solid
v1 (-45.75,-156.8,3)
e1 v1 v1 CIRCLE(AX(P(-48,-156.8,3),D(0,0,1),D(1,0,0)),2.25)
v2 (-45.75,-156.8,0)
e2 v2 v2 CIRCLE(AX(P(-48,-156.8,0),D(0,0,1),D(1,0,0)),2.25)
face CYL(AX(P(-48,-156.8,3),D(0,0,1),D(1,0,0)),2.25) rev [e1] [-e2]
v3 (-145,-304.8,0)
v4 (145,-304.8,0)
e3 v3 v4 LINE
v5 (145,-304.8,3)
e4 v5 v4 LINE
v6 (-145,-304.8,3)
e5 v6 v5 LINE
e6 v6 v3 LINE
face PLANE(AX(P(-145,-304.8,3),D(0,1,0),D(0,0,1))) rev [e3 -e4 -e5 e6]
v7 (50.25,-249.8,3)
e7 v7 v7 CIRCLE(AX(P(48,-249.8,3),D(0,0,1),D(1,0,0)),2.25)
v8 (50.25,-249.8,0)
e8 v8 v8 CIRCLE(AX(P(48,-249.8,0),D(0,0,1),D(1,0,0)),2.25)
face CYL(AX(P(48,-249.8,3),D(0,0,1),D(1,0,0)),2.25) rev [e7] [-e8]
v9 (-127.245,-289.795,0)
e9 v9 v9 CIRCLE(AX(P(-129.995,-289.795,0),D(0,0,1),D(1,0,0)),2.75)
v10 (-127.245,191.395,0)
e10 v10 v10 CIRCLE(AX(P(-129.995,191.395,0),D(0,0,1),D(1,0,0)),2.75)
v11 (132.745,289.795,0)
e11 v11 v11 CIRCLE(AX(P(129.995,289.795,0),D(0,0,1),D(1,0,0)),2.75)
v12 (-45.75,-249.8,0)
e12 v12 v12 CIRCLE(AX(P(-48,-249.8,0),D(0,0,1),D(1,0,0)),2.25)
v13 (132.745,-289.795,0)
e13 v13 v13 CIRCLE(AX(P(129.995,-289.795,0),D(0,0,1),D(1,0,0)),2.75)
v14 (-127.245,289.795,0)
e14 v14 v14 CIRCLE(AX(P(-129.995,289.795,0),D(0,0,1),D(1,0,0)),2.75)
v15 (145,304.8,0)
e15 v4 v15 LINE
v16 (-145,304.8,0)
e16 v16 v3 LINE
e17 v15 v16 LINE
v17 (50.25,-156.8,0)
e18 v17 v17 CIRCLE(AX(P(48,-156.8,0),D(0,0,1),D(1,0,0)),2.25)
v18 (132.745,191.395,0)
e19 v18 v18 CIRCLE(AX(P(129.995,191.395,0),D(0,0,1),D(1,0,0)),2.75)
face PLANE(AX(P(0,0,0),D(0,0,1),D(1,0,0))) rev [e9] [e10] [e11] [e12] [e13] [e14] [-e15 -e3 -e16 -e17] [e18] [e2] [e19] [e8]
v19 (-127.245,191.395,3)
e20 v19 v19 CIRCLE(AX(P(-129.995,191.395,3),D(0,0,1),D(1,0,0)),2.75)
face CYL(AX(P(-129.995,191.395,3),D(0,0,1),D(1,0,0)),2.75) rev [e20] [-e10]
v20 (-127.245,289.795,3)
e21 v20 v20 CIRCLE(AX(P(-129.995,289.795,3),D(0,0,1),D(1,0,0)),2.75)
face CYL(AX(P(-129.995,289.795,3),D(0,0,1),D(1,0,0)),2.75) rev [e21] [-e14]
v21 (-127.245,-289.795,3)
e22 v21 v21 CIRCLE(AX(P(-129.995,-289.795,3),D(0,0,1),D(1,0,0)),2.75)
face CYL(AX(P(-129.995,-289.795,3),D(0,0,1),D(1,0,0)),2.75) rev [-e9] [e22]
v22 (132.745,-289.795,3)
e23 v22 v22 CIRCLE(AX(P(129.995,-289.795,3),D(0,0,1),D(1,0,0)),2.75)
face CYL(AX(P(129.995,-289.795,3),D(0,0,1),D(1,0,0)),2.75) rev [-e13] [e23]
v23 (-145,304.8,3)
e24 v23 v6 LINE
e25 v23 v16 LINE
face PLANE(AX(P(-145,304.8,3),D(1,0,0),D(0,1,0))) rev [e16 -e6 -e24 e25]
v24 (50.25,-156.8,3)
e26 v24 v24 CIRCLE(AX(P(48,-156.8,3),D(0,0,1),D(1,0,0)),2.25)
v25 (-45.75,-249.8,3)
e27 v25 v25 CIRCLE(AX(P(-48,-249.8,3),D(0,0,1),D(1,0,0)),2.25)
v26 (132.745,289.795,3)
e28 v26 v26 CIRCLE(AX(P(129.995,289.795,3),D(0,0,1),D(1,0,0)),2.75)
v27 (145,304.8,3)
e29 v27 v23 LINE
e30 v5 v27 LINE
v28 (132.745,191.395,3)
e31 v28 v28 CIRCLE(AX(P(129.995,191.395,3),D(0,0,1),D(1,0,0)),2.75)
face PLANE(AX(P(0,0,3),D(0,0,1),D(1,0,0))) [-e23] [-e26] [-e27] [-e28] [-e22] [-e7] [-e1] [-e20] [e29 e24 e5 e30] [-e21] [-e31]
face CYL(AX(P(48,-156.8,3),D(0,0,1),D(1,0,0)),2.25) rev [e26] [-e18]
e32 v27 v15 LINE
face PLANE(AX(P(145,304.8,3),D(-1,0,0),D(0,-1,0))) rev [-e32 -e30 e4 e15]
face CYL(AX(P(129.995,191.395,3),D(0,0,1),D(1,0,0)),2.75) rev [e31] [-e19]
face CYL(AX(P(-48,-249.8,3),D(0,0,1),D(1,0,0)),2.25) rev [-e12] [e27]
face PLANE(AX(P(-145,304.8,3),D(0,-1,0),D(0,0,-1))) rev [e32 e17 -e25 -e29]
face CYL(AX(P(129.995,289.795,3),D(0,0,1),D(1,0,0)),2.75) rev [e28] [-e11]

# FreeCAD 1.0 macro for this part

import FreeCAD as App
import Part
import Sketcher
from FreeCAD import Vector
Q = App.Units.Quantity

doc = App.newDocument("Part")
body = doc.addObject("PartDesign::Body", "Body")

# Sketch on XY plane
sketch1 = doc.addObject("Sketcher::SketchObject", "Sketch")
body.addObject(sketch1)
sketch1.AttachmentSupport = (doc.XY_Plane, [""])
sketch1.MapMode = "FlatFace"
sketch1.addGeometry([
    Part.LineSegment(Vector(-145, 305, 0), Vector(-145, -305, 0)),
    Part.LineSegment(Vector(-145, -305, 0), Vector(145, -305, 0)),
    Part.LineSegment(Vector(145, -305, 0), Vector(145, 305, 0)),
    Part.LineSegment(Vector(145, 305, 0), Vector(-145, 305, 0)),
], False)
sketch1.addConstraint([
    Sketcher.Constraint("Coincident", 0, 2, 1, 1),
    Sketcher.Constraint("Coincident", 1, 2, 2, 1),
    Sketcher.Constraint("Coincident", 2, 2, 3, 1),
    Sketcher.Constraint("Coincident", 3, 2, 0, 1),
    Sketcher.Constraint("Vertical", 0),
    Sketcher.Constraint("Horizontal", 1),
    Sketcher.Constraint("Vertical", 2),
    Sketcher.Constraint("Horizontal", 3),
    Sketcher.Constraint("Symmetric", 0, 2, 2, 2, -1, 1),
    Sketcher.Constraint("DistanceX", 1, 1, 1, 2, Q("290 mm")),
    Sketcher.Constraint("DistanceY", 0, 2, 0, 1, Q("609.6 mm")),
])
pad1 = doc.addObject("PartDesign::Pad", "Pad")
body.addObject(pad1)
pad1.Profile = sketch1
pad1.Length = 3

# Sketch on XY plane
sketch2 = doc.addObject("Sketcher::SketchObject", "Sketch001")
body.addObject(sketch2)
sketch2.AttachmentSupport = (doc.XY_Plane, [""])
sketch2.MapMode = "FlatFace"
sketch2.AttachmentOffset = App.Placement(Vector(0, 0, 3), App.Rotation())
sketch2.addGeometry([
    Part.Circle(Vector(130, 289.8, 0), Vector(0, 0, 1), 2.8),  # 0
    Part.Circle(Vector(-130, 289.8, 0), Vector(0, 0, 1), 2.8),  # 1
    Part.Circle(Vector(-130, -289.8, 0), Vector(0, 0, 1), 2.8),  # 2
    Part.Circle(Vector(130, -289.8, 0), Vector(0, 0, 1), 2.8),  # 3
    Part.Circle(Vector(130, 191.4, 0), Vector(0, 0, 1), 2.8),  # 4
    Part.Circle(Vector(-130, 191.4, 0), Vector(0, 0, 1), 2.8),  # 5
], False)
sketch2.addConstraint([
    Sketcher.Constraint("Equal", 0, 1),
    Sketcher.Constraint("Equal", 1, 2),
    Sketcher.Constraint("Equal", 2, 3),
    Sketcher.Constraint("Equal", 3, 4),
    Sketcher.Constraint("Equal", 4, 5),
    Sketcher.Constraint("Symmetric", 0, 3, 2, 3, -1, 1),
    Sketcher.Constraint("Symmetric", 1, 3, 3, 3, -1, 1),
    Sketcher.Constraint("Symmetric", 0, 3, 1, 3, -2),
    Sketcher.Constraint("Symmetric", 4, 3, 5, 3, -2),
    Sketcher.Constraint("Vertical", 3, 3, 4, 3),
    Sketcher.Constraint("Diameter", 0, Q("5.5 mm")),
    Sketcher.Constraint("DistanceY", 4, 3, 0, 3, Q("98.4 mm")),
    Sketcher.Constraint("DistanceX", 1, 3, 0, 3, Q("259.99 mm")),
    Sketcher.Constraint("DistanceY", 2, 3, 1, 3, Q("579.59 mm")),
])
doc.recompute()
hole = doc.addObject("PartDesign::Hole", "Hole")
body.addObject(hole)
hole.Profile = sketch2
hole.ThreadType = "None"
hole.Diameter = 5.5
hole.DepthType = "ThroughAll"

# Sketch on XY plane
sketch3 = doc.addObject("Sketcher::SketchObject", "Sketch002")
body.addObject(sketch3)
sketch3.AttachmentSupport = (doc.XY_Plane, [""])
sketch3.MapMode = "FlatFace"
sketch3.AttachmentOffset = App.Placement(Vector(0, 0, 3), App.Rotation())
sketch3.addGeometry([
    Part.Circle(Vector(-48, -156.8, 0), Vector(0, 0, 1), 2.2),
    Part.Circle(Vector(-48, -249.8, 0), Vector(0, 0, 1), 2.2),
    Part.Circle(Vector(48, -249.8, 0), Vector(0, 0, 1), 2.2),
    Part.Circle(Vector(48, -156.8, 0), Vector(0, 0, 1), 2.2),
], False)
sketch3.addConstraint([
    Sketcher.Constraint("Equal", 0, 1),
    Sketcher.Constraint("Equal", 1, 2),
    Sketcher.Constraint("Equal", 2, 3),
    Sketcher.Constraint("Symmetric", 1, 3, 2, 3, -2),
    Sketcher.Constraint("Symmetric", 0, 3, 3, 3, -2),
    Sketcher.Constraint("Vertical", 0, 3, 1, 3),
    Sketcher.Constraint("Diameter", 0, Q("4.5 mm")),
    Sketcher.Constraint("DistanceX", 0, 3, -1, 1, Q("48 mm")),
    Sketcher.Constraint("DistanceY", 1, 3, 0, 3, Q("93 mm")),
    Sketcher.Constraint("DistanceY", 0, 3, -1, 1, Q("156.8 mm")),
])
doc.recompute()
hole2 = doc.addObject("PartDesign::Hole", "Hole001")
body.addObject(hole2)
hole2.Profile = sketch3
hole2.ThreadType = "None"
hole2.Diameter = 4.5
hole2.DepthType = "ThroughAll"

doc.recompute()
